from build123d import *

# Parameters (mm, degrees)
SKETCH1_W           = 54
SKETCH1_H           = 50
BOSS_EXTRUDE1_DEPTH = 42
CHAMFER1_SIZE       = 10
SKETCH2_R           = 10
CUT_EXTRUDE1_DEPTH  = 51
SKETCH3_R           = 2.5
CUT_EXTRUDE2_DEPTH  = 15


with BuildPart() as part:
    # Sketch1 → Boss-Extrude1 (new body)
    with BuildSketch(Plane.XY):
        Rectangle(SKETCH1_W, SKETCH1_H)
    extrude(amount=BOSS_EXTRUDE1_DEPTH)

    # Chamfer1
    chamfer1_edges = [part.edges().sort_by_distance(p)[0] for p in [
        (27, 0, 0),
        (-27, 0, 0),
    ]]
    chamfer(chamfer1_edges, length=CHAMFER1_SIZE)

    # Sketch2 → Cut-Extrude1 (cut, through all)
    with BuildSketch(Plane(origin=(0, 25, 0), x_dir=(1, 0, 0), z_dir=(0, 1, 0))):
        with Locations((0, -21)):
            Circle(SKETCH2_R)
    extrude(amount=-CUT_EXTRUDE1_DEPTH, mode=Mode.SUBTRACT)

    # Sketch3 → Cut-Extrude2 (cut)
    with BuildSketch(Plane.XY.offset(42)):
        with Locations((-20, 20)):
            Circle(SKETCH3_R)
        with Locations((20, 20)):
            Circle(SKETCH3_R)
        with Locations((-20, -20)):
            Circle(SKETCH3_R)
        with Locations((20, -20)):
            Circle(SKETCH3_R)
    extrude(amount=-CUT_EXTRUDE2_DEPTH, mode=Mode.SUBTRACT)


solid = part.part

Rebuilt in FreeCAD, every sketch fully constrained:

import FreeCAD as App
import Part
import Sketcher
from FreeCAD import Vector


def edges_at(feature, points):
    """Names of the edges that pass closest to the given points."""
    edges = feature.Shape.Edges
    near = lambda p: min(range(len(edges)), key=lambda i: edges[i].distToShape(Part.Vertex(*p))[0])
    return sorted({f"Edge{near(p) + 1}" for p in points})


def add_polygon(sketch, points):
    """Adds a closed chain of lines whose ends are joined by coincident constraints."""
    first, n = sketch.GeometryCount, len(points)
    for a, b in zip(points, points[1:] + points[:1]):
        sketch.addGeometry(Part.LineSegment(App.Vector(*a, 0), App.Vector(*b, 0)), False)
    for i in range(n):
        sketch.addConstraint(Sketcher.Constraint("Coincident", first + i, 2, first + (i + 1) % n, 1))

doc = App.newDocument("Part")
body = doc.addObject("PartDesign::Body", "Body")

sketch1 = body.newObject("Sketcher::SketchObject", "Sketch")
sketch1.AttachmentSupport = (doc.getObject("XY_Plane"), [""])
sketch1.MapMode = "FlatFace"
add_polygon(sketch1, [(-27, 25), (-27, -25), (27, -25), (27, 25)])
sketch1.addConstraint(Sketcher.Constraint("Vertical", 0))
sketch1.addConstraint(Sketcher.Constraint("Horizontal", 1))
sketch1.addConstraint(Sketcher.Constraint("Vertical", 2))
sketch1.addConstraint(Sketcher.Constraint("Horizontal", 3))
sketch1.addConstraint(Sketcher.Constraint("Symmetric", 0, 2, 2, 2, -1, 1))
sketch1.addConstraint(Sketcher.Constraint("DistanceX", 1, 1, 1, 2, 54.0))
sketch1.addConstraint(Sketcher.Constraint("DistanceY", 0, 2, 0, 1, 50.0))
pad1 = body.newObject("PartDesign::Pad", "Pad")
pad1.Profile = sketch1
pad1.Length = 42
doc.recompute()

chamfer = body.newObject("PartDesign::Chamfer", "Chamfer")
chamfer.Base = (pad1, edges_at(pad1, [(27, 0, 0), (-27, 0, 0)]))
chamfer.Size = 10

sketch2 = body.newObject("Sketcher::SketchObject", "Sketch001")
sketch2.AttachmentSupport = (doc.getObject("XZ_Plane"), [""])
sketch2.MapMode = "FlatFace"
sketch2.AttachmentOffset = App.Placement(Vector(0, 0, -25), App.Rotation())
sketch2.addGeometry(Part.Circle(Vector(0, 21, 0), Vector(0, 0, 1), 10), False)
sketch2.addConstraint(Sketcher.Constraint("PointOnObject", 0, 3, -2))
sketch2.addConstraint(Sketcher.Constraint("Diameter", 0, 20.0))
sketch2.addConstraint(Sketcher.Constraint("DistanceY", -1, 1, 0, 3, 21.0))
pocket1 = body.newObject("PartDesign::Pocket", "Pocket")
pocket1.Profile = sketch2
pocket1.Type = "ThroughAll"
pocket1.Reversed = True

sketch3 = body.newObject("Sketcher::SketchObject", "Sketch002")
sketch3.AttachmentSupport = (doc.getObject("XY_Plane"), [""])
sketch3.MapMode = "FlatFace"
sketch3.AttachmentOffset = App.Placement(Vector(0, 0, 42), App.Rotation())
sketch3.addGeometry(Part.Circle(Vector(-20, 20, 0), Vector(0, 0, 1), 2.5), False)
sketch3.addGeometry(Part.Circle(Vector(20, 20, 0), Vector(0, 0, 1), 2.5), False)
sketch3.addGeometry(Part.Circle(Vector(-20, -20, 0), Vector(0, 0, 1), 2.5), False)
sketch3.addGeometry(Part.Circle(Vector(20, -20, 0), Vector(0, 0, 1), 2.5), False)
sketch3.addConstraint(Sketcher.Constraint("Equal", 0, 1))
sketch3.addConstraint(Sketcher.Constraint("Equal", 1, 2))
sketch3.addConstraint(Sketcher.Constraint("Equal", 2, 3))
sketch3.addConstraint(Sketcher.Constraint("Symmetric", 1, 3, 2, 3, -1, 1))
sketch3.addConstraint(Sketcher.Constraint("Symmetric", 0, 3, 3, 3, -1, 1))
sketch3.addConstraint(Sketcher.Constraint("Symmetric", 0, 3, 1, 3, -2))
sketch3.addConstraint(Sketcher.Constraint("Diameter", 0, 5.0))
sketch3.addConstraint(Sketcher.Constraint("DistanceX", 0, 3, -1, 1, 20.0))
sketch3.addConstraint(Sketcher.Constraint("DistanceY", -1, 1, 0, 3, 20.0))
pocket2 = body.newObject("PartDesign::Pocket", "Pocket001")
pocket2.Profile = sketch3
pocket2.Length = 15

doc.recompute()
